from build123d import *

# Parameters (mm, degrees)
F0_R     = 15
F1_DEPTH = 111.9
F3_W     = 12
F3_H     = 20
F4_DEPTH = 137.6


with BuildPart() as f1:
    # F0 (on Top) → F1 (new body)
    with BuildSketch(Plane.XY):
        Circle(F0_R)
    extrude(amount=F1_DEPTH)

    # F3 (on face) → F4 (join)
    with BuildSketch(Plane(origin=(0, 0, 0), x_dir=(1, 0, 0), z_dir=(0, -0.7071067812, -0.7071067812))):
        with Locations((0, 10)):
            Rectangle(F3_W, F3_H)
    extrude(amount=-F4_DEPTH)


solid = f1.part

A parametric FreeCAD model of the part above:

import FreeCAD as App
import Part
import Sketcher
from FreeCAD import Vector


def add_polygon(sketch, points):
    """Adds a closed chain of lines whose ends are joined by coincident constraints."""
    first, n = sketch.GeometryCount, len(points)
    for a, b in zip(points, points[1:] + points[:1]):
        sketch.addGeometry(Part.LineSegment(App.Vector(*a, 0), App.Vector(*b, 0)), False)
    for i in range(n):
        sketch.addConstraint(Sketcher.Constraint("Coincident", first + i, 2, first + (i + 1) % n, 1))

doc = App.newDocument("Part")
body = doc.addObject("PartDesign::Body", "Body")

# Sketch on XY plane
sketch1 = body.newObject("Sketcher::SketchObject", "Sketch")
sketch1.AttachmentSupport = (doc.getObject("XY_Plane"), [""])
sketch1.MapMode = "FlatFace"
sketch1.addGeometry(Part.Circle(Vector(0, 0, 0), Vector(0, 0, 1), 15), False)
sketch1.addConstraint([
    Sketcher.Constraint("Coincident", 0, 3, -1, 1),
    Sketcher.Constraint("Diameter", 0, 30.0),
])
pad1 = body.newObject("PartDesign::Pad", "Pad")
pad1.Profile = sketch1
pad1.Length = 111.9

# Sketch on an angled plane
sketch2 = body.newObject("Sketcher::SketchObject", "Sketch001")
sketch2.Placement = App.Placement(Vector(0, 0, 0), App.Rotation(Vector(1, 0, 0), Vector(0, -0.707106781, 0.707106781), Vector(0, -0.707106781, -0.707106781), "ZXY"))
add_polygon(sketch2, [(-6, 20), (-6, 0), (6, 0), (6, 20)])  # lines 0-3
sketch2.addConstraint([
    Sketcher.Constraint("Vertical", 0),
    Sketcher.Constraint("Horizontal", 1),
    Sketcher.Constraint("Vertical", 2),
    Sketcher.Constraint("Horizontal", 3),
    Sketcher.Constraint("Symmetric", 0, 2, 1, 2, -1, 1),
    Sketcher.Constraint("DistanceX", 1, 1, 1, 2, 12.0),
    Sketcher.Constraint("DistanceY", 0, 2, 0, 1, 20.0),
])
pad2 = body.newObject("PartDesign::Pad", "Pad001")
pad2.Profile = sketch2
pad2.Length = 137.6
pad2.Reversed = True

doc.recompute()
